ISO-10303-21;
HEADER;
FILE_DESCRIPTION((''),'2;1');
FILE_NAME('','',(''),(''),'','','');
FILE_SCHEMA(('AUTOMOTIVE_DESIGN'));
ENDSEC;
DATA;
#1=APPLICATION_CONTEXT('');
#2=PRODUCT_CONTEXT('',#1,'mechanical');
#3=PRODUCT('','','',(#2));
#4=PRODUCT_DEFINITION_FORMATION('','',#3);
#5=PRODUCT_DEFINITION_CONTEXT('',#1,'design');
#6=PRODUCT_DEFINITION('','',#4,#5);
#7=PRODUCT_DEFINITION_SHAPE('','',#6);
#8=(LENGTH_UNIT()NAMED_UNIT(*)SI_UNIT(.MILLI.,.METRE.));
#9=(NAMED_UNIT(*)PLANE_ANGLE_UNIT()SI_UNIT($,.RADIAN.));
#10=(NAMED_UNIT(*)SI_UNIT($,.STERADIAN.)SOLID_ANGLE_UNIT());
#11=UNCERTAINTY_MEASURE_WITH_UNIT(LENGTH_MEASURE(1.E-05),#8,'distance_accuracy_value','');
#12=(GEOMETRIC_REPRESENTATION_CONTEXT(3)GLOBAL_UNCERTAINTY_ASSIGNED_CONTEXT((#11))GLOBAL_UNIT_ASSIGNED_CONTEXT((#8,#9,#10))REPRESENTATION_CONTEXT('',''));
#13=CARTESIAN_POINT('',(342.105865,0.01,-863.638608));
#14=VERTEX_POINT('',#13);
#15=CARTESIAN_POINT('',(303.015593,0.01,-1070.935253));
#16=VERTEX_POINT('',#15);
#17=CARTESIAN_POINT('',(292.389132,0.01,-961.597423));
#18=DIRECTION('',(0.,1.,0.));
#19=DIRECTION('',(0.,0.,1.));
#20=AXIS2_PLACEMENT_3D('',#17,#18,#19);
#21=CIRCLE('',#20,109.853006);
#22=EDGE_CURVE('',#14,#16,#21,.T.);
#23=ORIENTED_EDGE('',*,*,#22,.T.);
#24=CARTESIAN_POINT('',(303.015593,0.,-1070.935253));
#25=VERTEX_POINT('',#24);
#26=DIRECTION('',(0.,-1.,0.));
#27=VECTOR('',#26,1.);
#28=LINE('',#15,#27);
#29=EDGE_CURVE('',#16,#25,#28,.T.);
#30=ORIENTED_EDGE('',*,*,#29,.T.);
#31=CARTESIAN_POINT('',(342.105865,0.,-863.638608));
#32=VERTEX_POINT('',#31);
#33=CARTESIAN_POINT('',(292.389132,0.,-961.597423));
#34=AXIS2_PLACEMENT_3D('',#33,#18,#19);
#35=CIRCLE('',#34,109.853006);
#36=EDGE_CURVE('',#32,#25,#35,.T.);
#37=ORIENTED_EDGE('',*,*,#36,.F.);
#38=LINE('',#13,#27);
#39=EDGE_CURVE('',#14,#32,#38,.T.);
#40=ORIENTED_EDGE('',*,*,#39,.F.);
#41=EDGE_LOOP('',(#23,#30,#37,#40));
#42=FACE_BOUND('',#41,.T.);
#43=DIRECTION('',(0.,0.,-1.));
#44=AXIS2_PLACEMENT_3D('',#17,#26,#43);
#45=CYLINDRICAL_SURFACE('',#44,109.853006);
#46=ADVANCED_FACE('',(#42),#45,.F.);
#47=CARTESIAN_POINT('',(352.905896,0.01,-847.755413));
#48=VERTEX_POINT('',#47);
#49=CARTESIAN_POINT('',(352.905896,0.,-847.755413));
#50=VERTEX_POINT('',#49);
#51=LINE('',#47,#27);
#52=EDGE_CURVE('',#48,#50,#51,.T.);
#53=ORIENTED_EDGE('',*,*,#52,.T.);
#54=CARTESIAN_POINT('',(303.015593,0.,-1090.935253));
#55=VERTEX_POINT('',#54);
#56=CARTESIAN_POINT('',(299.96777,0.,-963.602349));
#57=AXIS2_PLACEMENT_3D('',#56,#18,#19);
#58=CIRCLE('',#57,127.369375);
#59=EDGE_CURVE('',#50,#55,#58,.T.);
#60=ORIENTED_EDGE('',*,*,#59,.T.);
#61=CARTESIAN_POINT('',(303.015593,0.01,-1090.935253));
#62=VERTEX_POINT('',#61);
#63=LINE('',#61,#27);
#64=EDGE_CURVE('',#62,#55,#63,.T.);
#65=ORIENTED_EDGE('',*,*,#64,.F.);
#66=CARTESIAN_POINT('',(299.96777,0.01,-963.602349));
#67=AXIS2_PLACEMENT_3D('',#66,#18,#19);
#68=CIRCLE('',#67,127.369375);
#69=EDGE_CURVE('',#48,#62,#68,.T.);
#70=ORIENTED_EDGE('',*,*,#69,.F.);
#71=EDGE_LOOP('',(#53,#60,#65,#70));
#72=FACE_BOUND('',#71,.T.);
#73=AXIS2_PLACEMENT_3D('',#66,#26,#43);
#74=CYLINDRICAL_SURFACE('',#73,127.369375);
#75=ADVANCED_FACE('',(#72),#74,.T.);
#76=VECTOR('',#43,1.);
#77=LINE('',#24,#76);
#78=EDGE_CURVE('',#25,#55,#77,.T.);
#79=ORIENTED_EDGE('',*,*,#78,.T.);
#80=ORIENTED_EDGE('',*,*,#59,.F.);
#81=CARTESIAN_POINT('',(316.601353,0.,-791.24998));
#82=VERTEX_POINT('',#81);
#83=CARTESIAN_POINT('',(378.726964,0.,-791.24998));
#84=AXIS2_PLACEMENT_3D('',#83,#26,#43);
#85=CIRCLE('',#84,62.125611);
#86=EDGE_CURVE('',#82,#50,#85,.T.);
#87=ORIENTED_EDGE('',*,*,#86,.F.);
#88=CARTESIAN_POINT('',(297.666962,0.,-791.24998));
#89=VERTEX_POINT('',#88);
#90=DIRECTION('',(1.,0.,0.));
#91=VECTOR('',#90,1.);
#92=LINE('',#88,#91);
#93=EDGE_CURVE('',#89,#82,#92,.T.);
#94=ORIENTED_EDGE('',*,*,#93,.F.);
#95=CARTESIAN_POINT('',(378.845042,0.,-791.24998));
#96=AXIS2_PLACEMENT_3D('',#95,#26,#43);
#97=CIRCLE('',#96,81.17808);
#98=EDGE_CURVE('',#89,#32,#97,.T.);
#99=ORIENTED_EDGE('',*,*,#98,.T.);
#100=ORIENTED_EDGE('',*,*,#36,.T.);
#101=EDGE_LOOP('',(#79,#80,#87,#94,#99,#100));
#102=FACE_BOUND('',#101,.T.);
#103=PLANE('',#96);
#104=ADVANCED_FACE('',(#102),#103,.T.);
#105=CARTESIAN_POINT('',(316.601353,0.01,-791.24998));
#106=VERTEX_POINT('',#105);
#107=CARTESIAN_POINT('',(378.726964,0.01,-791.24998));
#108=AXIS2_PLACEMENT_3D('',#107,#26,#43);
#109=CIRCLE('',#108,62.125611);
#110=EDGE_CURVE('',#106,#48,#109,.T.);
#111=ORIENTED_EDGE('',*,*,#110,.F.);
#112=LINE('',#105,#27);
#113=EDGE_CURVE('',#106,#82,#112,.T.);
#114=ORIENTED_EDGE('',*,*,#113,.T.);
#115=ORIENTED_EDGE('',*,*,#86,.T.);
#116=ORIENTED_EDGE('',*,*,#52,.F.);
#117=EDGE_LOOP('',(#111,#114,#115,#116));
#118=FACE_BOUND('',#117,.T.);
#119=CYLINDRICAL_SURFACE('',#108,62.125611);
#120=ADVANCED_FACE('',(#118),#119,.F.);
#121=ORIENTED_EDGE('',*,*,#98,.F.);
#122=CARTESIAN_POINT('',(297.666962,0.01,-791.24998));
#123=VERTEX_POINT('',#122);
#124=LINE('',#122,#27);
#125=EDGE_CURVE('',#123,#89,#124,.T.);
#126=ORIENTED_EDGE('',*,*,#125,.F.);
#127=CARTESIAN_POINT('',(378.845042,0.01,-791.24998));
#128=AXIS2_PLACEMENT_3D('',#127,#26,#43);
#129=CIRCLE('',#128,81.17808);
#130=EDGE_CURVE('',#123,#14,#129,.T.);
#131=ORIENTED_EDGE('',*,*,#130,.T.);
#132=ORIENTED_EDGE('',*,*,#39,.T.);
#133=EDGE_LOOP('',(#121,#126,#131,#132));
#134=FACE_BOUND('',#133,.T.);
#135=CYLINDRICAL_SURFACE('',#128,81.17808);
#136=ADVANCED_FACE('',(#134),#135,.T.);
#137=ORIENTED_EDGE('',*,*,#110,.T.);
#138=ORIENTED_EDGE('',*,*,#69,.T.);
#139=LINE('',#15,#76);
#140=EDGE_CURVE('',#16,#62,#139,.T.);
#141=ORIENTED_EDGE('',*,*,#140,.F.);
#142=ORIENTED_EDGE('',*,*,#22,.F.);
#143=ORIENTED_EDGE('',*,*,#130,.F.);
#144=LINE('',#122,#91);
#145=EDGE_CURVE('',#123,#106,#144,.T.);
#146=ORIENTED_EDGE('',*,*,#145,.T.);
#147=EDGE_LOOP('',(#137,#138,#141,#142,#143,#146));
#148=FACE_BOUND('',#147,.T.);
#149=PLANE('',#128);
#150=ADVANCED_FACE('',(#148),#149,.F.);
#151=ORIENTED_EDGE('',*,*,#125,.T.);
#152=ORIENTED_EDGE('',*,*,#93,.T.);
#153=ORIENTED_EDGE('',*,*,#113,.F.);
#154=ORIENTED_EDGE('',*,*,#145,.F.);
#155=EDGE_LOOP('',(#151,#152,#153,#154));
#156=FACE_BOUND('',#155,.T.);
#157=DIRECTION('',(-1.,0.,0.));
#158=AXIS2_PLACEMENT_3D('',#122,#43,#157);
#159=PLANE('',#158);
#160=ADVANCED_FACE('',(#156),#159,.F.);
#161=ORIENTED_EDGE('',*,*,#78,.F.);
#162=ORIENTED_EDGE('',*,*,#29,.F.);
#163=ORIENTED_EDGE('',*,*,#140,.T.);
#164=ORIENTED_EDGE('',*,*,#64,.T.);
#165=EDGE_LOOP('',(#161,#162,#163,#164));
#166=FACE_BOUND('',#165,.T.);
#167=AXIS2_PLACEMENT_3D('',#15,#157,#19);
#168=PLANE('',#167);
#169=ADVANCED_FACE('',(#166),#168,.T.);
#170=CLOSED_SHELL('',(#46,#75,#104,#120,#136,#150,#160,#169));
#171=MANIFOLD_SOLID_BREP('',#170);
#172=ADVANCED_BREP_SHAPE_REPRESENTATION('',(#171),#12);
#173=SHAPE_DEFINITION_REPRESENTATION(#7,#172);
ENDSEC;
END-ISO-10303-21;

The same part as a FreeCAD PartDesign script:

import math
import FreeCAD as App
import Part
import Sketcher

doc = App.newDocument("Part")
body = doc.addObject("PartDesign::Body", "Body")

# Sketch on XZ plane
sketch1 = doc.addObject("Sketcher::SketchObject", "Sketch")
body.addObject(sketch1)
sketch1.AttachmentSupport = (doc.XZ_Plane, [""])
sketch1.MapMode = "FlatFace"
sketch1.addGeometry([
    Part.LineSegment(App.Vector(298, -791, 0), App.Vector(317, -791, 0)),  # 0
    Part.ArcOfCircle(Part.Circle(App.Vector(379, -791, 0), App.Vector(0, 0, 1), 62), math.radians(180), math.radians(245)),  # 1
    Part.ArcOfCircle(Part.Circle(App.Vector(300, -964, 0), App.Vector(0, 0, 1), 127), math.radians(-89), math.radians(65)),  # 2
    Part.LineSegment(App.Vector(303, -1091, 0), App.Vector(303, -1071, 0)),  # 3
    Part.ArcOfCircle(Part.Circle(App.Vector(292, -962, 0), App.Vector(0, 0, 1), 110), math.radians(-84), math.radians(63)),  # 4
    Part.ArcOfCircle(Part.Circle(App.Vector(379, -791, 0), App.Vector(0, 0, 1), 81), math.radians(180), math.radians(243)),  # 5
], False)
sketch1.addConstraint([
    Sketcher.Constraint("Coincident", 0, 2, 1, 1),
    Sketcher.Constraint("Tangent", 1, 2, 2, 2),
    Sketcher.Constraint("Coincident", 2, 1, 3, 1),
    Sketcher.Constraint("Coincident", 3, 2, 4, 1),
    Sketcher.Constraint("Tangent", 4, 2, 5, 2),
    Sketcher.Constraint("Coincident", 5, 1, 0, 1),
    Sketcher.Constraint("Horizontal", 0),
    Sketcher.Constraint("Vertical", 3),
    Sketcher.Constraint("Horizontal", 1, 3, 5, 3),
    Sketcher.Constraint("Horizontal", 5, 3, 0, 2),
    Sketcher.Constraint("DistanceY", 3, 1, 3, 2, 20.0),
    Sketcher.Constraint("Radius", 1, 62.125611),
    Sketcher.Constraint("Radius", 5, 81.17808),
    Sketcher.Constraint("Radius", 2, 127.369375),
    Sketcher.Constraint("Radius", 4, 109.853006),
    Sketcher.Constraint("DistanceX", 0, 1, 0, 2, 18.934391),
    Sketcher.Constraint("DistanceX", 4, 2, 1, 3, 36.621099),
    Sketcher.Constraint("DistanceY", 1, 3, -1, 1, 791.24998),
    Sketcher.Constraint("DistanceX", -1, 1, 2, 3, 299.96777),
    Sketcher.Constraint("DistanceY", 2, 3, -1, 1, 963.602349),
])
pad1 = doc.addObject("PartDesign::Pad", "Pad")
body.addObject(pad1)
pad1.Profile = sketch1
pad1.Length = 0.01
pad1.Reversed = True

doc.recompute()
